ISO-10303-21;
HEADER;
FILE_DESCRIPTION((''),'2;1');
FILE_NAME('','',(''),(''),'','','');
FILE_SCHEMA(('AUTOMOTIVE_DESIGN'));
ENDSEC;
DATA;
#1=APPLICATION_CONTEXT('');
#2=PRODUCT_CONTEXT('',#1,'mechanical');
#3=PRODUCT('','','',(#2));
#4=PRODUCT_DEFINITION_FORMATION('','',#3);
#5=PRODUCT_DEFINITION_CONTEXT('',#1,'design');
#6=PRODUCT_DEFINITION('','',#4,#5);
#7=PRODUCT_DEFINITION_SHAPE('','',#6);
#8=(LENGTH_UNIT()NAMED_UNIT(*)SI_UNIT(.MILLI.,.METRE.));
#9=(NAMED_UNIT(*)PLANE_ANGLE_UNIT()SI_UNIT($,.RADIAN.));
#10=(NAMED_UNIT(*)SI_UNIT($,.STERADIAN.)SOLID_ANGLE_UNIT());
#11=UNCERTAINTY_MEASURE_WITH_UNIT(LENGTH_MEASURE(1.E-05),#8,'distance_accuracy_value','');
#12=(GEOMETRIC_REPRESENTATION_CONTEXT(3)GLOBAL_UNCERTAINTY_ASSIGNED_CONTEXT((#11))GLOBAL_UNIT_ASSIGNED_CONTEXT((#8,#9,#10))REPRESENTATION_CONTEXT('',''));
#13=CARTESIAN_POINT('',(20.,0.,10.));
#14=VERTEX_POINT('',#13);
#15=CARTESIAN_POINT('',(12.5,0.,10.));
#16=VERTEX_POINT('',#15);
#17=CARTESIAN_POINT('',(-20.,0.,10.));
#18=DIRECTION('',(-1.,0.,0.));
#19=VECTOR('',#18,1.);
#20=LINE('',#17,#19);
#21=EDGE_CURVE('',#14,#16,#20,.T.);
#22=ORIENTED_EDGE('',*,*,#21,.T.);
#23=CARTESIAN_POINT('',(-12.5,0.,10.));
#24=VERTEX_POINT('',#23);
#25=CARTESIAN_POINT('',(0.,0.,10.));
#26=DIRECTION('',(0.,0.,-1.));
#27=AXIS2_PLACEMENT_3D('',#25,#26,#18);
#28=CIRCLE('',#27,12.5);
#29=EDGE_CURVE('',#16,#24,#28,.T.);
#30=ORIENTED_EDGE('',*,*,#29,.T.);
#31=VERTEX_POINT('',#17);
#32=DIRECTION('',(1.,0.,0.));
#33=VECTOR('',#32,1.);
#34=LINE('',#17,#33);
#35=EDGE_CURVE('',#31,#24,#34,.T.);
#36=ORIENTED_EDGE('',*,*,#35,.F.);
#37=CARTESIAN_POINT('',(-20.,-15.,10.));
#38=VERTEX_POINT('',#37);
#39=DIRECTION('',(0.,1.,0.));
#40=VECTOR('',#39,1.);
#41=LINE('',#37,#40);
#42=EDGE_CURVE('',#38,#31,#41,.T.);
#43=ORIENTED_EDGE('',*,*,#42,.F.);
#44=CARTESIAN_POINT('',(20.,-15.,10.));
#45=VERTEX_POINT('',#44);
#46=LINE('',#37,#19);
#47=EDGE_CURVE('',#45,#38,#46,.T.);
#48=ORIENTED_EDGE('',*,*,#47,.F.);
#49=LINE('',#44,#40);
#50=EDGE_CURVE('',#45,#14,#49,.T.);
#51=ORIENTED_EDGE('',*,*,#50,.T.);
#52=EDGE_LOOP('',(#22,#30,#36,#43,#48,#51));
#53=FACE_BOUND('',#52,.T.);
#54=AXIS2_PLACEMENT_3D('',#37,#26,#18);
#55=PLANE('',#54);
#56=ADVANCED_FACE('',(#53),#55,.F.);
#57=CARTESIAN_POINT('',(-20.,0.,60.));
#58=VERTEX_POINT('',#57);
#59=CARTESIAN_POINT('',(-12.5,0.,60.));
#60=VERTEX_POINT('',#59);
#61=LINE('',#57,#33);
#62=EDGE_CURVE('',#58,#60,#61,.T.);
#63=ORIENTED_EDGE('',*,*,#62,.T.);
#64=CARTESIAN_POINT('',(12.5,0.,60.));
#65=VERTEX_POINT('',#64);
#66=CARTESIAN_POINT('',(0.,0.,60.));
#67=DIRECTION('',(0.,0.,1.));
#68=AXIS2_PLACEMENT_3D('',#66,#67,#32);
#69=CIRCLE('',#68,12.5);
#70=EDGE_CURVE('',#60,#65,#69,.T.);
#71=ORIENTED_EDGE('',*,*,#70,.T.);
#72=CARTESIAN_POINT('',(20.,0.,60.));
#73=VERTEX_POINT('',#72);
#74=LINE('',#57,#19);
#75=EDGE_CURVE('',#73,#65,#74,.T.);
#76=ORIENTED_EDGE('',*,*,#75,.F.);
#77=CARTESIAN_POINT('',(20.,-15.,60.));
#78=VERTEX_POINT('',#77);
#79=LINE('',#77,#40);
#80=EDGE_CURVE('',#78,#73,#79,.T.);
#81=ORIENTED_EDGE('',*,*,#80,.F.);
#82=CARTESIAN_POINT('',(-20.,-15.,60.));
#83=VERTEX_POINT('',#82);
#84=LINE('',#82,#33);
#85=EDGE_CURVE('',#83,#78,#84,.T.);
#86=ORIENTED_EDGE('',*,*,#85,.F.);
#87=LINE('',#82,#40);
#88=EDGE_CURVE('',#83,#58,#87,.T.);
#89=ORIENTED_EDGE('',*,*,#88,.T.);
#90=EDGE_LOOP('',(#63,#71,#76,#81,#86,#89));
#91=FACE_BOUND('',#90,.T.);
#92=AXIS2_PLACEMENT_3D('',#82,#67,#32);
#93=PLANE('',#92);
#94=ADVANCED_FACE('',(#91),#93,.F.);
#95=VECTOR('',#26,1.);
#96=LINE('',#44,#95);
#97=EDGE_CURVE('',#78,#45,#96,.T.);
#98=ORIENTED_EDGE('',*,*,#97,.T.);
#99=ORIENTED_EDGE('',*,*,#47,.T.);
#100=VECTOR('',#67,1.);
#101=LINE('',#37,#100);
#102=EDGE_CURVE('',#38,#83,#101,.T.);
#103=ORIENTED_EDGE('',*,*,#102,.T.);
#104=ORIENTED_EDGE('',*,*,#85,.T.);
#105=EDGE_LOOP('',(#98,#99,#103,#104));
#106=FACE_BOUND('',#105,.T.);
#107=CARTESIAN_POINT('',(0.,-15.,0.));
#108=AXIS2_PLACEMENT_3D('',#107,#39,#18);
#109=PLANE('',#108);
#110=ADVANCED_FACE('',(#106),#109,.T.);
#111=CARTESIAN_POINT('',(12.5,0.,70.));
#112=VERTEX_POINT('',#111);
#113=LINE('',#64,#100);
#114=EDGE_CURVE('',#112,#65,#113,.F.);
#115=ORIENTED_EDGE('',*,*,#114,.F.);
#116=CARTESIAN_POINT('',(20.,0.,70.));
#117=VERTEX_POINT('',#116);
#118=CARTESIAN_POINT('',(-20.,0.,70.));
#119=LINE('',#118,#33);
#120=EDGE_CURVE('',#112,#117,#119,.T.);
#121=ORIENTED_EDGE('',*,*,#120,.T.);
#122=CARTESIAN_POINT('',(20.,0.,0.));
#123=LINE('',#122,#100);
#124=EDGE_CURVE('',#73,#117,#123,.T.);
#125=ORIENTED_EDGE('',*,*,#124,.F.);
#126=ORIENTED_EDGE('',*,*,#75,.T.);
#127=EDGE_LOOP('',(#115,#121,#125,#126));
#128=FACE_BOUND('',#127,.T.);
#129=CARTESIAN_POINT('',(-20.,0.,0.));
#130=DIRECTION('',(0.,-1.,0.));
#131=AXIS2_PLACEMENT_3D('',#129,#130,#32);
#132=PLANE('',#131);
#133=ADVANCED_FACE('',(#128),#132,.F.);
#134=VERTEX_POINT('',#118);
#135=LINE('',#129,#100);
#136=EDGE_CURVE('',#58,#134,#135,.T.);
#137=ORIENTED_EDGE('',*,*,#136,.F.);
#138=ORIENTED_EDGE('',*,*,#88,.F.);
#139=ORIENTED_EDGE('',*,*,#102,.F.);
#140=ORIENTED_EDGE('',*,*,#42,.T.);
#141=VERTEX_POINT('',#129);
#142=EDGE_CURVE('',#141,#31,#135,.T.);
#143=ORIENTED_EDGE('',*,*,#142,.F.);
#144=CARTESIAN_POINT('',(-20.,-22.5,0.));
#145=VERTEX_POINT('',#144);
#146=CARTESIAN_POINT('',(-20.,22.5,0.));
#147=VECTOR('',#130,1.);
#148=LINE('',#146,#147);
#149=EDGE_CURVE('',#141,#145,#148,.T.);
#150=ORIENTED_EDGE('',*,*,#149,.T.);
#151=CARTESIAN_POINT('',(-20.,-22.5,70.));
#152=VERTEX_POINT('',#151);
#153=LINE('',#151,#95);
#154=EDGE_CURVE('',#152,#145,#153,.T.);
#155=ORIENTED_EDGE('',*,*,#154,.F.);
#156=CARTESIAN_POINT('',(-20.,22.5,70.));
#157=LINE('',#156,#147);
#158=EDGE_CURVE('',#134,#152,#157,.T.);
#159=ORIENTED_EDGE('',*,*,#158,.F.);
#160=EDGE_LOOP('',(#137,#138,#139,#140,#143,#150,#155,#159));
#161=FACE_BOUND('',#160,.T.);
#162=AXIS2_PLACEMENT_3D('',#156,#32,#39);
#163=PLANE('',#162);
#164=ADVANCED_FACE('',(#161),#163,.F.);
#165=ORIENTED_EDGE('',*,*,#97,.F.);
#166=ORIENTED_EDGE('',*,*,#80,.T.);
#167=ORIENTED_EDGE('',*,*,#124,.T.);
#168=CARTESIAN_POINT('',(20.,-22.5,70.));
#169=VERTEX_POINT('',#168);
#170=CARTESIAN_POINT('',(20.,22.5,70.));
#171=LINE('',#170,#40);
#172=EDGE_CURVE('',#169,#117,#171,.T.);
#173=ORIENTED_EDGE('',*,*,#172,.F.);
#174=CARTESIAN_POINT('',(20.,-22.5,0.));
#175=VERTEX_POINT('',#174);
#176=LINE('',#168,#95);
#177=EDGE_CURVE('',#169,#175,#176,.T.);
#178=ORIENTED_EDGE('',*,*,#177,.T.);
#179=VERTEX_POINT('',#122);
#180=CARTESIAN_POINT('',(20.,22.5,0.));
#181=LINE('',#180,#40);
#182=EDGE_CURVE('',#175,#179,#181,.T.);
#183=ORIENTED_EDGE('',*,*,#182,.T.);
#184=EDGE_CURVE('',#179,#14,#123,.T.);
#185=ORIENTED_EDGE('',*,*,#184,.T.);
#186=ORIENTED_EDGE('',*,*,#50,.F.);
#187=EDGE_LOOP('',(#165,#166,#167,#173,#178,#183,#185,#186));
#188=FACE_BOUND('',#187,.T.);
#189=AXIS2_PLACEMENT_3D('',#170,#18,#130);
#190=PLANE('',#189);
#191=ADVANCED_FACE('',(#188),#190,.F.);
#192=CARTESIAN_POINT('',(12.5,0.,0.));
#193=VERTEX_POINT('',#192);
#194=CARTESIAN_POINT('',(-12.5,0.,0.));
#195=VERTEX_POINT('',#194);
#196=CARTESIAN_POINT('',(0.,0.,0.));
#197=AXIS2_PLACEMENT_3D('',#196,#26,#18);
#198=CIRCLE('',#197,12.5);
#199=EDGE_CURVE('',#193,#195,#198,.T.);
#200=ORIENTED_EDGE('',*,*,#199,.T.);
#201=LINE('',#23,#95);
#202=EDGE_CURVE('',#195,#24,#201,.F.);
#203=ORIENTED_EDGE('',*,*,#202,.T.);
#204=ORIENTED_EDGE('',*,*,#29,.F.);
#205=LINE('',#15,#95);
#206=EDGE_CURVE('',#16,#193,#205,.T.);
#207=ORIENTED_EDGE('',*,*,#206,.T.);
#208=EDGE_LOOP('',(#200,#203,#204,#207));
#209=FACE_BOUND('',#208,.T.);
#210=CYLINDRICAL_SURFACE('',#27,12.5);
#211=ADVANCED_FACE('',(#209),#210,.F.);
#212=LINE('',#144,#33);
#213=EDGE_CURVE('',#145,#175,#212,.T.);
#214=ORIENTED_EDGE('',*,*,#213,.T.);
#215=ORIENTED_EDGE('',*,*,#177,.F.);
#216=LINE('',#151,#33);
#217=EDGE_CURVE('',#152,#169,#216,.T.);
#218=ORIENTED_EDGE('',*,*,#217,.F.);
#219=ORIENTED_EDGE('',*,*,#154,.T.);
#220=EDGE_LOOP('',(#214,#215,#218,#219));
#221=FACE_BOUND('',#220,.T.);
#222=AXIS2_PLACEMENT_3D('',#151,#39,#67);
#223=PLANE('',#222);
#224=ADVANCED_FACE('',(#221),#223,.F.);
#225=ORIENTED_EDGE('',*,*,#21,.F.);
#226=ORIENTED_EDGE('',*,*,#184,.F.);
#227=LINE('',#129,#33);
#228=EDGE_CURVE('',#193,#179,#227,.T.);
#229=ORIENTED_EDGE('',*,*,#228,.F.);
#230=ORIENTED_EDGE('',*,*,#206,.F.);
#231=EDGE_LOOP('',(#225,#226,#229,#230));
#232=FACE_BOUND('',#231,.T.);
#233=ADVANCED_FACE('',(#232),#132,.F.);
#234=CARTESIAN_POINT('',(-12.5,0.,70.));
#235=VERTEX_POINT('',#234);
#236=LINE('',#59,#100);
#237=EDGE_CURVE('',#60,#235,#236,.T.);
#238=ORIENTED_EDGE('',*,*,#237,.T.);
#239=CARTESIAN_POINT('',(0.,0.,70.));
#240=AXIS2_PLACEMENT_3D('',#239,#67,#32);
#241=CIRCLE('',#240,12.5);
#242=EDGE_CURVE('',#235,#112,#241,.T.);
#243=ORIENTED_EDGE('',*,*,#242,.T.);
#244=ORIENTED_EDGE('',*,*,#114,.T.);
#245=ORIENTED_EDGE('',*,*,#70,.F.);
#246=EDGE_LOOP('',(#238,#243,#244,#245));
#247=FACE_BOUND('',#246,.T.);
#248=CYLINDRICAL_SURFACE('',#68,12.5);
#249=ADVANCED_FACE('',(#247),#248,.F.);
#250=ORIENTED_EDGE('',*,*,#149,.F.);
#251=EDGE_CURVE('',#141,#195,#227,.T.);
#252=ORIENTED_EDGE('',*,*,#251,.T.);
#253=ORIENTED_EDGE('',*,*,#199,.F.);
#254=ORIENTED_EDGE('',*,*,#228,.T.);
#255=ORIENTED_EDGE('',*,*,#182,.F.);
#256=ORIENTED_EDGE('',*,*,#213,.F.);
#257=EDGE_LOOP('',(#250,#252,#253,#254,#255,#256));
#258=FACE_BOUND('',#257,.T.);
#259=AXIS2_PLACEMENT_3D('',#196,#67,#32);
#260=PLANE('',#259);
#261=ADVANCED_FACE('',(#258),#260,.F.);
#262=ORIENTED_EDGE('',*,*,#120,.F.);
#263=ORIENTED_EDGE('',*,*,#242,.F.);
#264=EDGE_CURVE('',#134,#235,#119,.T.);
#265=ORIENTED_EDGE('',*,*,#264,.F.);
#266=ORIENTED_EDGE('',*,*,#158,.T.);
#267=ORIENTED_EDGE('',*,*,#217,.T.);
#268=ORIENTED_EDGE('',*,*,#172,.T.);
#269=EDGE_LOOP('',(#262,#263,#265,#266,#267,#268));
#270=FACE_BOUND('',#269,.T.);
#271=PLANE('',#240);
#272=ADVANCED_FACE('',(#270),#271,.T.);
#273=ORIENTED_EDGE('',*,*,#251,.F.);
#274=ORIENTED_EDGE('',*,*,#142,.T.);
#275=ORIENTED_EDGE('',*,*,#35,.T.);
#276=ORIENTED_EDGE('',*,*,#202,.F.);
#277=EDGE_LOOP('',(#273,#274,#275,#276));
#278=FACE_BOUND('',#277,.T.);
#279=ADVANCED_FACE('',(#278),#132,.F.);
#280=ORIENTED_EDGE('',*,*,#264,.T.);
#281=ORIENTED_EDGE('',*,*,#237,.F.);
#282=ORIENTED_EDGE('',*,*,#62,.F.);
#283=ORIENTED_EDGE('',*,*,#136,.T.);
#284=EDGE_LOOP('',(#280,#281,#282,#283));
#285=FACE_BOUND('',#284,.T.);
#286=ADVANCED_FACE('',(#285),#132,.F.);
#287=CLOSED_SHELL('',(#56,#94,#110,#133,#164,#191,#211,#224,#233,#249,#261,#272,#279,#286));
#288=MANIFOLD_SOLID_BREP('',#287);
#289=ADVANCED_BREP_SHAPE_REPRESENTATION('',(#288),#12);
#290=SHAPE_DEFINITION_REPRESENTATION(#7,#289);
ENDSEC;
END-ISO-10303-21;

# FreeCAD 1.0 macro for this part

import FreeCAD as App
import Part
import Sketcher
from FreeCAD import Vector
Q = App.Units.Quantity

doc = App.newDocument("Part")
body = doc.addObject("PartDesign::Body", "Body")

sketch1 = body.newObject("Sketcher::SketchObject", "Sketch")
sketch1.AttachmentSupport = (doc.getObject("XY_Plane"), [""])
sketch1.MapMode = "FlatFace"
sketch1.addGeometry(Part.LineSegment(Vector(-20, 22, 0), Vector(-20, -22, 0)), False)
sketch1.addGeometry(Part.LineSegment(Vector(-20, -22, 0), Vector(20, -22, 0)), False)
sketch1.addGeometry(Part.LineSegment(Vector(20, -22, 0), Vector(20, 22, 0)), False)
sketch1.addGeometry(Part.LineSegment(Vector(20, 22, 0), Vector(-20, 22, 0)), False)
sketch1.addConstraint(Sketcher.Constraint("Coincident", 0, 2, 1, 1))
sketch1.addConstraint(Sketcher.Constraint("Coincident", 1, 2, 2, 1))
sketch1.addConstraint(Sketcher.Constraint("Coincident", 2, 2, 3, 1))
sketch1.addConstraint(Sketcher.Constraint("Coincident", 3, 2, 0, 1))
sketch1.addConstraint(Sketcher.Constraint("Vertical", 0))
sketch1.addConstraint(Sketcher.Constraint("Horizontal", 1))
sketch1.addConstraint(Sketcher.Constraint("Vertical", 2))
sketch1.addConstraint(Sketcher.Constraint("Horizontal", 3))
sketch1.addConstraint(Sketcher.Constraint("Symmetric", 0, 2, 2, 2, -1, 1))
sketch1.addConstraint(Sketcher.Constraint("DistanceX", 1, 1, 1, 2, Q("40 mm")))
sketch1.addConstraint(Sketcher.Constraint("DistanceY", 0, 2, 0, 1, Q("45 mm")))
pad1 = body.newObject("PartDesign::Pad", "Pad")
pad1.Profile = sketch1
pad1.Length = 70

sketch2 = body.newObject("Sketcher::SketchObject", "Sketch001")
sketch2.AttachmentSupport = (doc.getObject("XY_Plane"), [""])
sketch2.MapMode = "FlatFace"
sketch2.addGeometry(Part.Circle(Vector(0, 0, 0), Vector(0, 0, 1), 12), False)
sketch2.addConstraint(Sketcher.Constraint("Coincident", 0, 3, -1, 1))
sketch2.addConstraint(Sketcher.Constraint("Diameter", 0, Q("25 mm")))
pocket1 = body.newObject("PartDesign::Pocket", "Pocket")
pocket1.Profile = sketch2
pocket1.Length = 10
pocket1.Reversed = True

sketch3 = body.newObject("Sketcher::SketchObject", "Sketch002")
sketch3.AttachmentSupport = (doc.getObject("XY_Plane"), [""])
sketch3.MapMode = "FlatFace"
sketch3.AttachmentOffset = App.Placement(Vector(0, 0, 70), App.Rotation())
sketch3.addGeometry(Part.Circle(Vector(0, 0, 0), Vector(0, 0, 1), 12), False)
sketch3.addConstraint(Sketcher.Constraint("Coincident", 0, 3, -1, 1))
sketch3.addConstraint(Sketcher.Constraint("Diameter", 0, Q("25 mm")))
pocket2 = body.newObject("PartDesign::Pocket", "Pocket001")
pocket2.Profile = sketch3
pocket2.Length = 10

sketch4 = body.newObject("Sketcher::SketchObject", "Sketch003")
sketch4.AttachmentSupport = (doc.getObject("XY_Plane"), [""])
sketch4.MapMode = "FlatFace"
sketch4.AttachmentOffset = App.Placement(Vector(0, 0, 70), App.Rotation())
sketch4.addGeometry(Part.LineSegment(Vector(-20, 22, 0), Vector(-20, 0, 0)), False)
sketch4.addGeometry(Part.LineSegment(Vector(-20, 0, 0), Vector(20, 0, 0)), False)
sketch4.addGeometry(Part.LineSegment(Vector(20, 0, 0), Vector(20, 22, 0)), False)
sketch4.addGeometry(Part.LineSegment(Vector(20, 22, 0), Vector(-20, 22, 0)), False)
sketch4.addConstraint(Sketcher.Constraint("Coincident", 0, 2, 1, 1))
sketch4.addConstraint(Sketcher.Constraint("Coincident", 1, 2, 2, 1))
sketch4.addConstraint(Sketcher.Constraint("Coincident", 2, 2, 3, 1))
sketch4.addConstraint(Sketcher.Constraint("Coincident", 3, 2, 0, 1))
sketch4.addConstraint(Sketcher.Constraint("Vertical", 0))
sketch4.addConstraint(Sketcher.Constraint("Horizontal", 1))
sketch4.addConstraint(Sketcher.Constraint("Vertical", 2))
sketch4.addConstraint(Sketcher.Constraint("Horizontal", 3))
sketch4.addConstraint(Sketcher.Constraint("Symmetric", 0, 2, 1, 2, -1, 1))
sketch4.addConstraint(Sketcher.Constraint("DistanceX", 1, 1, 1, 2, Q("40 mm")))
sketch4.addConstraint(Sketcher.Constraint("DistanceY", 0, 2, 0, 1, Q("22.5 mm")))
pocket3 = body.newObject("PartDesign::Pocket", "Pocket002")
pocket3.Profile = sketch4
pocket3.Type = "ThroughAll"

sketch5 = body.newObject("Sketcher::SketchObject", "Sketch004")
sketch5.AttachmentSupport = (doc.getObject("XZ_Plane"), [""])
sketch5.MapMode = "FlatFace"
sketch5.addGeometry(Part.LineSegment(Vector(-20, 10, 0), Vector(-20, 60, 0)), False)
sketch5.addGeometry(Part.LineSegment(Vector(-20, 60, 0), Vector(20, 60, 0)), False)
sketch5.addGeometry(Part.LineSegment(Vector(20, 60, 0), Vector(20, 10, 0)), False)
sketch5.addGeometry(Part.LineSegment(Vector(20, 10, 0), Vector(-20, 10, 0)), False)
sketch5.addConstraint(Sketcher.Constraint("Coincident", 0, 2, 1, 1))
sketch5.addConstraint(Sketcher.Constraint("Coincident", 1, 2, 2, 1))
sketch5.addConstraint(Sketcher.Constraint("Coincident", 2, 2, 3, 1))
sketch5.addConstraint(Sketcher.Constraint("Coincident", 3, 2, 0, 1))
sketch5.addConstraint(Sketcher.Constraint("Vertical", 0))
sketch5.addConstraint(Sketcher.Constraint("Horizontal", 1))
sketch5.addConstraint(Sketcher.Constraint("Vertical", 2))
sketch5.addConstraint(Sketcher.Constraint("Horizontal", 3))
sketch5.addConstraint(Sketcher.Constraint("DistanceX", 1, 1, 1, 2, Q("40 mm")))
sketch5.addConstraint(Sketcher.Constraint("DistanceY", 0, 1, 0, 2, Q("50 mm")))
sketch5.addConstraint(Sketcher.Constraint("DistanceX", 0, 2, -1, 1, Q("20 mm")))
sketch5.addConstraint(Sketcher.Constraint("DistanceY", -1, 1, 0, 2, Q("60 mm")))
pocket4 = body.newObject("PartDesign::Pocket", "Pocket003")
pocket4.Profile = sketch5
pocket4.Length = 15
pocket4.Reversed = True

doc.recompute()
